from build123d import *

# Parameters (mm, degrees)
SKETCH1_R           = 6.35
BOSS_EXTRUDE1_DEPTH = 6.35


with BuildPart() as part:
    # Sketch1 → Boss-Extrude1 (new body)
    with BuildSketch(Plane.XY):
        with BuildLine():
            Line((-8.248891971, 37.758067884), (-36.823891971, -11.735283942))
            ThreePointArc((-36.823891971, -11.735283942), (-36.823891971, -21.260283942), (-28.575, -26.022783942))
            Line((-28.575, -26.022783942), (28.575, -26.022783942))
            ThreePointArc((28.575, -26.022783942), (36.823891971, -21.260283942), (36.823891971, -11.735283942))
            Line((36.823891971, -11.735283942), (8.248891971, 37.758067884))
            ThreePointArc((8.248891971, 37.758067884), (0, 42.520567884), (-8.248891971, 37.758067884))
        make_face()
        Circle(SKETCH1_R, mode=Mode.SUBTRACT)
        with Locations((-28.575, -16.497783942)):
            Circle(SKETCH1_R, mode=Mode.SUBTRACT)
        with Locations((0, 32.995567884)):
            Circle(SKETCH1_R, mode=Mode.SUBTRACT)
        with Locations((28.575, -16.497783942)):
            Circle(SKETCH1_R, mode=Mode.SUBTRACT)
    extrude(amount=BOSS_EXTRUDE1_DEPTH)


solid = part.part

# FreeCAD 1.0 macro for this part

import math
import FreeCAD as App
import Part
import Sketcher

V = App.Vector
Q = App.Units.Quantity

doc = App.newDocument("Part")
body = doc.addObject("PartDesign::Body", "Body")

# Sketch on XY plane
sketch1 = body.newObject("Sketcher::SketchObject", "Sketch")
sketch1.AttachmentSupport = (doc.getObject("XY_Plane"), [""])
sketch1.MapMode = "FlatFace"
sketch1.addGeometry([
    Part.LineSegment(V(-8, 38, 0), V(-37, -12, 0)),  # 0
    Part.ArcOfCircle(Part.Circle(V(-29, -16, 0), V(0, 0, 1), 10), math.radians(150), math.radians(270)),  # 1
    Part.LineSegment(V(-29, -26, 0), V(29, -26, 0)),  # 2
    Part.ArcOfCircle(Part.Circle(V(29, -16, 0), V(0, 0, 1), 10), math.radians(-90), math.radians(30)),  # 3
    Part.LineSegment(V(37, -12, 0), V(8, 38, 0)),  # 4
    Part.ArcOfCircle(Part.Circle(V(0, 33, 0), V(0, 0, 1), 10), math.radians(30), math.radians(150)),  # 5
    Part.Circle(V(-29, -16, 0), V(0, 0, 1), 6),  # 6
    Part.Circle(V(29, -16, 0), V(0, 0, 1), 6),  # 7
    Part.Circle(V(0, 0, 0), V(0, 0, 1), 6),  # 8
    Part.Circle(V(0, 33, 0), V(0, 0, 1), 6),  # 9
], False)
sketch1.addConstraint([
    Sketcher.Constraint("Tangent", 0, 2, 1, 1),
    Sketcher.Constraint("Tangent", 1, 2, 2, 1),
    Sketcher.Constraint("Tangent", 2, 2, 3, 1),
    Sketcher.Constraint("Tangent", 3, 2, 4, 1),
    Sketcher.Constraint("Tangent", 4, 2, 5, 1),
    Sketcher.Constraint("Tangent", 5, 2, 0, 1),
    Sketcher.Constraint("Horizontal", 2),
    Sketcher.Constraint("Coincident", 8, 3, -1, 1),
    Sketcher.Constraint("Coincident", 6, 3, 1, 3),
    Sketcher.Constraint("Coincident", 7, 3, 3, 3),
    Sketcher.Constraint("Coincident", 9, 3, 5, 3),
    Sketcher.Constraint("Equal", 1, 3),
    Sketcher.Constraint("Equal", 3, 5),
    Sketcher.Constraint("Equal", 6, 7),
    Sketcher.Constraint("Equal", 7, 8),
    Sketcher.Constraint("Equal", 8, 9),
    Sketcher.Constraint("Symmetric", 0, 2, 3, 2, -2),
    Sketcher.Constraint("Diameter", 6, Q("0.5 in")),
    Sketcher.Constraint("Angle", 0, Q("-120 deg")),
    Sketcher.Constraint("Radius", 1, Q("0.375 in")),
    Sketcher.Constraint("DistanceX", 2, 1, 2, 2, Q("2.25 in")),
    Sketcher.Constraint("DistanceY", 1, 3, -1, 1, 16.497784),
])
pad1 = body.newObject("PartDesign::Pad", "Pad")
pad1.Profile = sketch1
pad1.Length = Q("0.25 in")

doc.recompute()
